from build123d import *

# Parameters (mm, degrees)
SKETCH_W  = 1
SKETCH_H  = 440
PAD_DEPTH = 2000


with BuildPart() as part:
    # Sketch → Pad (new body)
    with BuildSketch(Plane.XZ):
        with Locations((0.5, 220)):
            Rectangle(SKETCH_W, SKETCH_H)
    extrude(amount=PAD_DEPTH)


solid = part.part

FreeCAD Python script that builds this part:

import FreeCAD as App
import Part
import Sketcher

V = App.Vector
Q = App.Units.Quantity

doc = App.newDocument("Part")
body = doc.addObject("PartDesign::Body", "Body")

# Sketch on XZ plane
sketch1 = doc.addObject("Sketcher::SketchObject", "Sketch")
body.addObject(sketch1)
sketch1.AttachmentSupport = (doc.XZ_Plane, [""])
sketch1.MapMode = "FlatFace"
sketch1.addGeometry([
    Part.LineSegment(V(0, 440, 0), V(0, 0, 0)),
    Part.LineSegment(V(0, 0, 0), V(1, 0, 0)),
    Part.LineSegment(V(1, 0, 0), V(1, 440, 0)),
    Part.LineSegment(V(1, 440, 0), V(0, 440, 0)),
], False)
sketch1.addConstraint([
    Sketcher.Constraint("Coincident", 0, 2, 1, 1),
    Sketcher.Constraint("Coincident", 1, 2, 2, 1),
    Sketcher.Constraint("Coincident", 2, 2, 3, 1),
    Sketcher.Constraint("Coincident", 3, 2, 0, 1),
    Sketcher.Constraint("Vertical", 0),
    Sketcher.Constraint("Horizontal", 1),
    Sketcher.Constraint("Vertical", 2),
    Sketcher.Constraint("Horizontal", 3),
    Sketcher.Constraint("Coincident", 0, 2, -1, 1),
    Sketcher.Constraint("DistanceX", 1, 1, 1, 2, Q("1 mm")),
    Sketcher.Constraint("DistanceY", 0, 2, 0, 1, Q("440 mm")),
])
pad1 = doc.addObject("PartDesign::Pad", "Pad")
body.addObject(pad1)
pad1.Profile = sketch1
pad1.Length = 2000

doc.recompute()
